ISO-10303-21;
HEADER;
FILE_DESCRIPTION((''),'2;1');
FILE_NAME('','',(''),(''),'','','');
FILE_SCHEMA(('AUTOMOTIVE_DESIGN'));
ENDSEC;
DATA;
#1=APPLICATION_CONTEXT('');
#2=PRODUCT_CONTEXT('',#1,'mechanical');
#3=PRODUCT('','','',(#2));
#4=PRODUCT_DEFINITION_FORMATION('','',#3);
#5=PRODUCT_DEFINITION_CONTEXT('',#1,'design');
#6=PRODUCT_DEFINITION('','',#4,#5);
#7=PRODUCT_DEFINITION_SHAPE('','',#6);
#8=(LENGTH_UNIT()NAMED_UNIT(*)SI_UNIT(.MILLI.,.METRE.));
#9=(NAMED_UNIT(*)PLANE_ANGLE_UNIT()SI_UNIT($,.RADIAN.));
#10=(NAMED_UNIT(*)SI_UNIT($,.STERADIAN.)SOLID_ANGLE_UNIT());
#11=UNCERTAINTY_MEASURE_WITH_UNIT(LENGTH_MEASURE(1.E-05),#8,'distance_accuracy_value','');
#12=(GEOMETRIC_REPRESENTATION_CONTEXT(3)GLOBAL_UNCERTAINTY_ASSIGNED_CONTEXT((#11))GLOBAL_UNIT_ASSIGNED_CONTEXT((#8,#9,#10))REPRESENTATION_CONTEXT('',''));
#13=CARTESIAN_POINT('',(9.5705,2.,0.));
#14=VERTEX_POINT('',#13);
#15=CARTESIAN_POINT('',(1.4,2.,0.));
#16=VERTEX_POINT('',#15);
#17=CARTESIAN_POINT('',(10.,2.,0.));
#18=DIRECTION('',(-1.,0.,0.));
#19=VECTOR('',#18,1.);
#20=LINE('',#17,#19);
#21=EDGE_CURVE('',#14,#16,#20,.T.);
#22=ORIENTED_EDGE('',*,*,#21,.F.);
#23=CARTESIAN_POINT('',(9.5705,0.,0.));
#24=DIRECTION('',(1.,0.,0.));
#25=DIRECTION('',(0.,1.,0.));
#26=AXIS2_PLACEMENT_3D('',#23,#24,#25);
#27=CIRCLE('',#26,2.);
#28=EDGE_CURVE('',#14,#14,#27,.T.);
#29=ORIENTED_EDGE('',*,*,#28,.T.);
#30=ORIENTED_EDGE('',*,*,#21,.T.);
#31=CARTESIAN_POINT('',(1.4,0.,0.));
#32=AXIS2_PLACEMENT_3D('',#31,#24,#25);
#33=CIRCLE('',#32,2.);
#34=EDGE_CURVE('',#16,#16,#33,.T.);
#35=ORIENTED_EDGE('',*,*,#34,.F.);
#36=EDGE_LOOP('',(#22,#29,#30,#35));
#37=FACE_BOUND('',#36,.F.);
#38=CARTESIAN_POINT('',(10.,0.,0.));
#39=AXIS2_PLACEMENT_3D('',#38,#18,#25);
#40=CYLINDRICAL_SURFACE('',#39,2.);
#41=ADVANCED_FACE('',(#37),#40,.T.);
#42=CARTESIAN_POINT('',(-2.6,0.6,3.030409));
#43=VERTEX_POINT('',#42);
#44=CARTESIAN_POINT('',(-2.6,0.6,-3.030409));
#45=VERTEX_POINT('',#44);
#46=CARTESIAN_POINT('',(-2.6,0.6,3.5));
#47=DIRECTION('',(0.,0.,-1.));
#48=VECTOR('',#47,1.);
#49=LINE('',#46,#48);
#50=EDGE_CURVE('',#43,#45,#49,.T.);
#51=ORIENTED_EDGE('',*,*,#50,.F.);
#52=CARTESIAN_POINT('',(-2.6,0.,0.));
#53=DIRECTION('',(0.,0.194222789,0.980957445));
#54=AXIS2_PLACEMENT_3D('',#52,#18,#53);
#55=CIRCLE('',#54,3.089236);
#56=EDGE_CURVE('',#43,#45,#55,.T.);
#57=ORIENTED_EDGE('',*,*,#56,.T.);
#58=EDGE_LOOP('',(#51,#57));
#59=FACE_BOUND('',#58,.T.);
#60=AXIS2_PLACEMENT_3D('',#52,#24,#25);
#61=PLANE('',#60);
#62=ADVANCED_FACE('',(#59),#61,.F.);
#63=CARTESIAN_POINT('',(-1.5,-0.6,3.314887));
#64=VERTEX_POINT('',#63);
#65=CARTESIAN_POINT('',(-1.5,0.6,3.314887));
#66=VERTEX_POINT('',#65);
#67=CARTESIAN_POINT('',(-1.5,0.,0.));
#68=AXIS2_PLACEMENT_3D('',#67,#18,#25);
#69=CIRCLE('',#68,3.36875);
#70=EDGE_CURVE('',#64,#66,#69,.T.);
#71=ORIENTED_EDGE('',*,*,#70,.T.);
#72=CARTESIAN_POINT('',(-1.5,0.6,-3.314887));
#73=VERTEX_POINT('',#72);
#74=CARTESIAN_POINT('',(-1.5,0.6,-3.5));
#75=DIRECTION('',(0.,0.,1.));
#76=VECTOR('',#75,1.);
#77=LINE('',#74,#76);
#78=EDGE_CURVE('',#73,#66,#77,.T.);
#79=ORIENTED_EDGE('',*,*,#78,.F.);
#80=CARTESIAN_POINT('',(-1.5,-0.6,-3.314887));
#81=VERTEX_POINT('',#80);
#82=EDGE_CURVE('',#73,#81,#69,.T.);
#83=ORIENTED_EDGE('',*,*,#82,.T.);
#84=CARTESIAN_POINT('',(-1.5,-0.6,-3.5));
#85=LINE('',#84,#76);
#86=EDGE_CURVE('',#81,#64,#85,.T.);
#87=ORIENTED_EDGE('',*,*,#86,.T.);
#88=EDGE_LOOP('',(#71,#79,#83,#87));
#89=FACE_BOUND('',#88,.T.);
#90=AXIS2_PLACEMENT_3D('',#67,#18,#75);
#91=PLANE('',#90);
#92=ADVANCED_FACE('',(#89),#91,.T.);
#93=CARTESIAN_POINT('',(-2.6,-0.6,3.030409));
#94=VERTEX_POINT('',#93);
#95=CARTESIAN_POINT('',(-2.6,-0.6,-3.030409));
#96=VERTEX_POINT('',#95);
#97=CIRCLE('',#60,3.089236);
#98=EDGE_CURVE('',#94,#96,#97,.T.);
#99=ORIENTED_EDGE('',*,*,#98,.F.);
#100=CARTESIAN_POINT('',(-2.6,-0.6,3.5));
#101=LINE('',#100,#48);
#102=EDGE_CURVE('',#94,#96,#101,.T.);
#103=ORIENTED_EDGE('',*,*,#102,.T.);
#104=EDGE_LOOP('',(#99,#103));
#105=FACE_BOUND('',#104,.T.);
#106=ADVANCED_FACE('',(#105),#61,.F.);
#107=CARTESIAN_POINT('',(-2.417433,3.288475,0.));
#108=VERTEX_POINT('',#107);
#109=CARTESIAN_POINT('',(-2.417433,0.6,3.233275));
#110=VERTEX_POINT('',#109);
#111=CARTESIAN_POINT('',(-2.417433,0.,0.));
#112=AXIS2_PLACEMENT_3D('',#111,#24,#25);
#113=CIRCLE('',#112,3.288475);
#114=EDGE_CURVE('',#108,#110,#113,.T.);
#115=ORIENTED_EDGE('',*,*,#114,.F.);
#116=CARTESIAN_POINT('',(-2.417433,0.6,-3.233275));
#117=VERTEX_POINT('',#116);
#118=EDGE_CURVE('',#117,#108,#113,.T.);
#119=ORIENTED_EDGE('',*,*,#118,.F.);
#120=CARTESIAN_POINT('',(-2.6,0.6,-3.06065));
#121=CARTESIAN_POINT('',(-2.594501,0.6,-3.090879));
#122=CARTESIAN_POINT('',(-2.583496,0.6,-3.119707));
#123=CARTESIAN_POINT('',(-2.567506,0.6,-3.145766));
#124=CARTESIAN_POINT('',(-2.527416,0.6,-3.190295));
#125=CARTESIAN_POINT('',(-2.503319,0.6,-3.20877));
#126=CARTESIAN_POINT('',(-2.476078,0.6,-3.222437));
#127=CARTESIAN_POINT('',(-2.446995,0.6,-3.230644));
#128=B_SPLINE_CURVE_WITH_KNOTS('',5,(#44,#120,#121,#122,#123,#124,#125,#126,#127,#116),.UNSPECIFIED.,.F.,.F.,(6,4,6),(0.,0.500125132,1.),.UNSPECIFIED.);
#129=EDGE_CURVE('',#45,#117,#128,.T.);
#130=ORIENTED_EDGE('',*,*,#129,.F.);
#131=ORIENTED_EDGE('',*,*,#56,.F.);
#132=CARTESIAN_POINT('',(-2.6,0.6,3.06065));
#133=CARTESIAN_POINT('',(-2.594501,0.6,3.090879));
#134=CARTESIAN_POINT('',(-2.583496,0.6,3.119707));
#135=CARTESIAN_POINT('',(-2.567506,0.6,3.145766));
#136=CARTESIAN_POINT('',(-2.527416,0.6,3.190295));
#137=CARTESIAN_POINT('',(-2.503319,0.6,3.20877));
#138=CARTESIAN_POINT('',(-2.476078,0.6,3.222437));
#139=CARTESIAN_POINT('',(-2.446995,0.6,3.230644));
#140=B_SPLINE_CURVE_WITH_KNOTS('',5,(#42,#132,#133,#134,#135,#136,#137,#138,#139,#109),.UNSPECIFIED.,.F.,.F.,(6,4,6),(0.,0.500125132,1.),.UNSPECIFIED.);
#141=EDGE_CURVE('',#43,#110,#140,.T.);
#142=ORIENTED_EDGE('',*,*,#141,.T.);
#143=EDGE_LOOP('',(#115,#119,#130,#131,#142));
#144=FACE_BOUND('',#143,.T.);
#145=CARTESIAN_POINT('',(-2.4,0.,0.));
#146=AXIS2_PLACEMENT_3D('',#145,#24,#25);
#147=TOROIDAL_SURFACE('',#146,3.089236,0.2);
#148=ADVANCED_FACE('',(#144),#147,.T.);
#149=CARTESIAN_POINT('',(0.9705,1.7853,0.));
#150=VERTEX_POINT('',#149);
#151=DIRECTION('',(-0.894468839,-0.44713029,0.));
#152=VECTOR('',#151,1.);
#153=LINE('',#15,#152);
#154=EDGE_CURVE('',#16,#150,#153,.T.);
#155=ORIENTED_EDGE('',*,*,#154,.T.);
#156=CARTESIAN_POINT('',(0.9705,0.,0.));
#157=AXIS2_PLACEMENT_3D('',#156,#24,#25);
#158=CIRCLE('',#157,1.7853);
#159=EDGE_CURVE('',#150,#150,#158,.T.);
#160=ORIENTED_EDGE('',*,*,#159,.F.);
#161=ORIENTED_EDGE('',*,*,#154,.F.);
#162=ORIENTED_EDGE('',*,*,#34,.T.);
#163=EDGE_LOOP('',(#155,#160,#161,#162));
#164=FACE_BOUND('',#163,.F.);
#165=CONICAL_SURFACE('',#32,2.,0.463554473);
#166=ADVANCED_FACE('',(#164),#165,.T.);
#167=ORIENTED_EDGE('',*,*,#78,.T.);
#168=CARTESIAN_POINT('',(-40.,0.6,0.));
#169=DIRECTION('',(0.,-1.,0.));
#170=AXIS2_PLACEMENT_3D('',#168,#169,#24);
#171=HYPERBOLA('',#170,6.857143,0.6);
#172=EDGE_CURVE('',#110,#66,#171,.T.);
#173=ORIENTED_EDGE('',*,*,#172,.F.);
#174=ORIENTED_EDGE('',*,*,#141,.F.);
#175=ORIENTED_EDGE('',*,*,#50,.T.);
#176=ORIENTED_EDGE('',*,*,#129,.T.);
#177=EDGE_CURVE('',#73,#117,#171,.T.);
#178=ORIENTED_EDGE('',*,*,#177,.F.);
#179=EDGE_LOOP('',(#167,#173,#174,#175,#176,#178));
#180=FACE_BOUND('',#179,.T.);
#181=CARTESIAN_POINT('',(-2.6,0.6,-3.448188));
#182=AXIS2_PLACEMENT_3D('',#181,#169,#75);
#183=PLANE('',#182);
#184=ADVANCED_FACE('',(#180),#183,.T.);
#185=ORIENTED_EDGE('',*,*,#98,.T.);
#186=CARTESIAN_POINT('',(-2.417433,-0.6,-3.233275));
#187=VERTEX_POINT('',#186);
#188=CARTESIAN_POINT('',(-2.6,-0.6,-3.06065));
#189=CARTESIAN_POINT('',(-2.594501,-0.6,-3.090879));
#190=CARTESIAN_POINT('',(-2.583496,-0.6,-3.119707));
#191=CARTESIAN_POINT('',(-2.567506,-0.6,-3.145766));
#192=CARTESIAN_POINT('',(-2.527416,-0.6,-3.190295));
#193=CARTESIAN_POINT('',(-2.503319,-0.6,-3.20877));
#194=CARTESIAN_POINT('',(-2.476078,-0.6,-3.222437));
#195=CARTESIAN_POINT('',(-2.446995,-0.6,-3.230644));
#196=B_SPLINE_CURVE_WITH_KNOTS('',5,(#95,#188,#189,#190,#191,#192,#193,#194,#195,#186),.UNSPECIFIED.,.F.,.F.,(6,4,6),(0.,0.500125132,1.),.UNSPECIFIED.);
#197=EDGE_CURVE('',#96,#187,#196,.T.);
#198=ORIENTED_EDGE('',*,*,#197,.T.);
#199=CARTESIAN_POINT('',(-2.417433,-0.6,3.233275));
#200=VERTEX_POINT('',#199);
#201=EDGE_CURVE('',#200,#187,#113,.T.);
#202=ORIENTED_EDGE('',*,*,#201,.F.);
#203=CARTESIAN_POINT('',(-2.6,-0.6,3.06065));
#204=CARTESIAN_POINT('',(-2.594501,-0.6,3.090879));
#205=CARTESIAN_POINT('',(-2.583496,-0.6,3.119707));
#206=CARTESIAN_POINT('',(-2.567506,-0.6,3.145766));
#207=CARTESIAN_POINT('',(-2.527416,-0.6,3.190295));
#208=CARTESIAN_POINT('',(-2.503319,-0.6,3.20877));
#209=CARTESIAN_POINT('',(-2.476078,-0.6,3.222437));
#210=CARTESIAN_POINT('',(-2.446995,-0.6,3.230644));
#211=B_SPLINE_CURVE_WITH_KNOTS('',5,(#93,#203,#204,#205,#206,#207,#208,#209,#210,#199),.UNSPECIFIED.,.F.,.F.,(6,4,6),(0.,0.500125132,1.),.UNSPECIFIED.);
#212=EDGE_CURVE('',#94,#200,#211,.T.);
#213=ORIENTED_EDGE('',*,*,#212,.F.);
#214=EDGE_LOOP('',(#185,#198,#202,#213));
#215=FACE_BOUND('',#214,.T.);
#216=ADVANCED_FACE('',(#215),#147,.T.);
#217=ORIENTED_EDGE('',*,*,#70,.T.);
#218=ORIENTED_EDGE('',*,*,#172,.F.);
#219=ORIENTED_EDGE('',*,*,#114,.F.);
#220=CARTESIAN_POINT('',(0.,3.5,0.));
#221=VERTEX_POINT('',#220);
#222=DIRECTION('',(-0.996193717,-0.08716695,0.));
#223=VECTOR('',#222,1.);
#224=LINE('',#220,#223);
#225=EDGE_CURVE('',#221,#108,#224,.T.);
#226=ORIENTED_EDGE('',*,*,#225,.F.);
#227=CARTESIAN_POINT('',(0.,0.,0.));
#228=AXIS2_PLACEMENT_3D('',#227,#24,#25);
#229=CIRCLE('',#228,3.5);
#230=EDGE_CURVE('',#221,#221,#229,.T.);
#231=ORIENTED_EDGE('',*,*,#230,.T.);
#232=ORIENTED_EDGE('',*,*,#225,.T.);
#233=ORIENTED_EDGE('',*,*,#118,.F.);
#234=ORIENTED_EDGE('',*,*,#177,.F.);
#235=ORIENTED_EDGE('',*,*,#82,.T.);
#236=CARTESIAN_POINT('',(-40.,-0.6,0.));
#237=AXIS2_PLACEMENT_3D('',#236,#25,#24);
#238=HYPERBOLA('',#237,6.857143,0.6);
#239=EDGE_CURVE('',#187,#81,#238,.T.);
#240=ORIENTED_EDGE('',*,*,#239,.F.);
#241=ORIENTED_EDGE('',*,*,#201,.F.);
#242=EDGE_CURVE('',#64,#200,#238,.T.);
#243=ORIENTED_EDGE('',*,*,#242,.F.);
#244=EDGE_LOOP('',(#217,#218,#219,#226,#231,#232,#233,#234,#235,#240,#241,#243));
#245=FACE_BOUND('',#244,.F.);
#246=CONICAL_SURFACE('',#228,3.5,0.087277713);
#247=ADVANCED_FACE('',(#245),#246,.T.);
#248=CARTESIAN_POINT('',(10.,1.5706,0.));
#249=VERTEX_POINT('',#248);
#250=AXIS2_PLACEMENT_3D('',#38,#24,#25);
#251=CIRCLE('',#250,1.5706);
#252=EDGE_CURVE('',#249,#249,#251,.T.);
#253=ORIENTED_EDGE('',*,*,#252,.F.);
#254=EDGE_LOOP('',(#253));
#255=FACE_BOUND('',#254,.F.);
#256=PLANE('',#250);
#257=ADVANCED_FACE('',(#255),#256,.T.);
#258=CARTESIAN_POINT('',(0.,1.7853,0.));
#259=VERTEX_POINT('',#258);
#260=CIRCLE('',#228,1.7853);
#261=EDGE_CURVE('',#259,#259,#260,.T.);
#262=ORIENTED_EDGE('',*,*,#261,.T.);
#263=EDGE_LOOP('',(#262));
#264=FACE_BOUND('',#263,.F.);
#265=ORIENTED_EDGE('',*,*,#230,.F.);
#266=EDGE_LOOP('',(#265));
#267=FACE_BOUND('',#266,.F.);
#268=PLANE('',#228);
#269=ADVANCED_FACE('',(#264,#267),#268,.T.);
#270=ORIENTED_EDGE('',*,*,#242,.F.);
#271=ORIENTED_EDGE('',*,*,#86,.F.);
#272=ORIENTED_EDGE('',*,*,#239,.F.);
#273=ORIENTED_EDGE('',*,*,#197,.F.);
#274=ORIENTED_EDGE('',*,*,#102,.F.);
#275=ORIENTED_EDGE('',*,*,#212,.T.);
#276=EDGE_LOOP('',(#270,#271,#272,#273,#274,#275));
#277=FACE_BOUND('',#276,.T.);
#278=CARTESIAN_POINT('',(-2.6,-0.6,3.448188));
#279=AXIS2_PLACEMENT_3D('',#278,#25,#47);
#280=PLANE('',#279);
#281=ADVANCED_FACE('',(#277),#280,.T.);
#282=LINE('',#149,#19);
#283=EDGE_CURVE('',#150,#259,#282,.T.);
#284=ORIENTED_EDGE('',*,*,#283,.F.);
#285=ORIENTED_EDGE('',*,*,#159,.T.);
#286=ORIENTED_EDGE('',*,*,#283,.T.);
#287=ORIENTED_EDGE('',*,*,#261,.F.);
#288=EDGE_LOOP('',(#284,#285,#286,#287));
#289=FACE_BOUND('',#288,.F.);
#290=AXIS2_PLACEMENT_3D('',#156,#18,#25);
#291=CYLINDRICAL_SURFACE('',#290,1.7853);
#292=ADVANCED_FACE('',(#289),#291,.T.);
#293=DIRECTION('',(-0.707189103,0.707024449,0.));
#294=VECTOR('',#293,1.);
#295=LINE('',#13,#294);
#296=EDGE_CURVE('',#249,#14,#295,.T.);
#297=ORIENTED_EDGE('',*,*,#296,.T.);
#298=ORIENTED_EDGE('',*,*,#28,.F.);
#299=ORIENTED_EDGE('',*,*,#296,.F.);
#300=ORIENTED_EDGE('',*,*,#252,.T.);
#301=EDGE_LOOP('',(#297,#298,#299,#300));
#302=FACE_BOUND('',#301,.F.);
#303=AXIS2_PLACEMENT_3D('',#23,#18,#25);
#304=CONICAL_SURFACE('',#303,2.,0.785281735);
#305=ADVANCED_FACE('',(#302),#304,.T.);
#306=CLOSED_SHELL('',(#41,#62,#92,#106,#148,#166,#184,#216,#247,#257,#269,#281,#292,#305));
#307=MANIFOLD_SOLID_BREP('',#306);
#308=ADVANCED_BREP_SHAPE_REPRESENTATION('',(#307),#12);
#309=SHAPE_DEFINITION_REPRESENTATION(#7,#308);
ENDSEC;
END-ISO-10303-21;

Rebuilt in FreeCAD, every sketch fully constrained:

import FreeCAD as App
import Part
import Sketcher
Q = App.Units.Quantity


def edges_at(feature, points):
    """Names of the edges that pass closest to the given points."""
    edges = feature.Shape.Edges
    near = lambda p: min(range(len(edges)), key=lambda i: edges[i].distToShape(Part.Vertex(*p))[0])
    return sorted({f"Edge{near(p) + 1}" for p in points})


def add_polygon(sketch, points):
    """Adds a closed chain of lines whose ends are joined by coincident constraints."""
    first, n = sketch.GeometryCount, len(points)
    for a, b in zip(points, points[1:] + points[:1]):
        sketch.addGeometry(Part.LineSegment(App.Vector(*a, 0), App.Vector(*b, 0)), False)
    for i in range(n):
        sketch.addConstraint(Sketcher.Constraint("Coincident", first + i, 2, first + (i + 1) % n, 1))

doc = App.newDocument("Part")
body = doc.addObject("PartDesign::Body", "Body")

sketch1 = body.newObject("Sketcher::SketchObject", "Sketch")
sketch1.AttachmentSupport = (doc.getObject("XY_Plane"), [""])
sketch1.MapMode = "FlatFace"
add_polygon(sketch1, [(-2.6, 3.2725), (-2.6, 0), (10, 0), (10, 2), (1.4, 2), (0.9705, 1.7853), (0, 1.7853), (0, 3.5)])
sketch1.addConstraint([
    Sketcher.Constraint("Vertical", 0),
    Sketcher.Constraint("Horizontal", 1),
    Sketcher.Constraint("Vertical", 2),
    Sketcher.Constraint("Horizontal", 3),
    Sketcher.Constraint("Horizontal", 5),
    Sketcher.Constraint("Vertical", 6),
    Sketcher.Constraint("PointOnObject", 0, 2, -1),
    Sketcher.Constraint("PointOnObject", 5, 2, -2),
    Sketcher.Constraint("DistanceX", 3, 2, 3, 1, 8.6),
    Sketcher.Constraint("DistanceX", -1, 1, 1, 2, 10.0),
    Sketcher.Constraint("DistanceX", 0, 2, 3, 2, 4.0),
    Sketcher.Constraint("DistanceY", 2, 1, 2, 2, 2.0),
    Sketcher.Constraint("Angle", 7, Q("-174.9994 deg")),
    Sketcher.Constraint("DistanceY", -1, 1, 6, 2, 3.5),
    Sketcher.Constraint("Angle", 4, Q("-153.4403 deg")),
    Sketcher.Constraint("DistanceX", 4, 2, 3, 2, 0.4295),
])
revolution = body.newObject("PartDesign::Revolution", "Revolution")
revolution.Profile = sketch1
revolution.ReferenceAxis = (sketch1, ["H_Axis"])
revolution.Angle = 360
doc.recompute()

fillet = body.newObject("PartDesign::Fillet", "Fillet")
fillet.Base = (revolution, edges_at(revolution, [(-2.6, -3.272, 0)]))
fillet.Radius = 0.2

sketch2 = body.newObject("Sketcher::SketchObject", "Sketch001")
sketch2.AttachmentSupport = (doc.getObject("YZ_Plane"), [""])
sketch2.MapMode = "FlatFace"
sketch2.AttachmentOffset = App.Placement(App.Vector(0, 0, -2.6), App.Rotation())
add_polygon(sketch2, [(-0.6, 3.5), (0.6, 3.5), (0.6, -3.5), (-0.6, -3.5)])
sketch2.addConstraint([
    Sketcher.Constraint("Horizontal", 0),
    Sketcher.Constraint("Vertical", 1),
    Sketcher.Constraint("Horizontal", 2),
    Sketcher.Constraint("Vertical", 3),
    Sketcher.Constraint("Symmetric", 0, 2, 2, 2, -1, 1),
    Sketcher.Constraint("DistanceY", 1, 2, 1, 1, 7.0),
    Sketcher.Constraint("DistanceX", 0, 1, 0, 2, 1.2),
])
pocket1 = body.newObject("PartDesign::Pocket", "Pocket")
pocket1.Profile = sketch2
pocket1.Length = 1.1
pocket1.Reversed = True
doc.recompute()

chamfer = body.newObject("PartDesign::Chamfer", "Chamfer")
chamfer.Base = (pocket1, edges_at(pocket1, [(10, -2, 0)]))
chamfer.ChamferType = "Two distances"
chamfer.Size = 0.4294
chamfer.Size2 = 0.4295

doc.recompute()
